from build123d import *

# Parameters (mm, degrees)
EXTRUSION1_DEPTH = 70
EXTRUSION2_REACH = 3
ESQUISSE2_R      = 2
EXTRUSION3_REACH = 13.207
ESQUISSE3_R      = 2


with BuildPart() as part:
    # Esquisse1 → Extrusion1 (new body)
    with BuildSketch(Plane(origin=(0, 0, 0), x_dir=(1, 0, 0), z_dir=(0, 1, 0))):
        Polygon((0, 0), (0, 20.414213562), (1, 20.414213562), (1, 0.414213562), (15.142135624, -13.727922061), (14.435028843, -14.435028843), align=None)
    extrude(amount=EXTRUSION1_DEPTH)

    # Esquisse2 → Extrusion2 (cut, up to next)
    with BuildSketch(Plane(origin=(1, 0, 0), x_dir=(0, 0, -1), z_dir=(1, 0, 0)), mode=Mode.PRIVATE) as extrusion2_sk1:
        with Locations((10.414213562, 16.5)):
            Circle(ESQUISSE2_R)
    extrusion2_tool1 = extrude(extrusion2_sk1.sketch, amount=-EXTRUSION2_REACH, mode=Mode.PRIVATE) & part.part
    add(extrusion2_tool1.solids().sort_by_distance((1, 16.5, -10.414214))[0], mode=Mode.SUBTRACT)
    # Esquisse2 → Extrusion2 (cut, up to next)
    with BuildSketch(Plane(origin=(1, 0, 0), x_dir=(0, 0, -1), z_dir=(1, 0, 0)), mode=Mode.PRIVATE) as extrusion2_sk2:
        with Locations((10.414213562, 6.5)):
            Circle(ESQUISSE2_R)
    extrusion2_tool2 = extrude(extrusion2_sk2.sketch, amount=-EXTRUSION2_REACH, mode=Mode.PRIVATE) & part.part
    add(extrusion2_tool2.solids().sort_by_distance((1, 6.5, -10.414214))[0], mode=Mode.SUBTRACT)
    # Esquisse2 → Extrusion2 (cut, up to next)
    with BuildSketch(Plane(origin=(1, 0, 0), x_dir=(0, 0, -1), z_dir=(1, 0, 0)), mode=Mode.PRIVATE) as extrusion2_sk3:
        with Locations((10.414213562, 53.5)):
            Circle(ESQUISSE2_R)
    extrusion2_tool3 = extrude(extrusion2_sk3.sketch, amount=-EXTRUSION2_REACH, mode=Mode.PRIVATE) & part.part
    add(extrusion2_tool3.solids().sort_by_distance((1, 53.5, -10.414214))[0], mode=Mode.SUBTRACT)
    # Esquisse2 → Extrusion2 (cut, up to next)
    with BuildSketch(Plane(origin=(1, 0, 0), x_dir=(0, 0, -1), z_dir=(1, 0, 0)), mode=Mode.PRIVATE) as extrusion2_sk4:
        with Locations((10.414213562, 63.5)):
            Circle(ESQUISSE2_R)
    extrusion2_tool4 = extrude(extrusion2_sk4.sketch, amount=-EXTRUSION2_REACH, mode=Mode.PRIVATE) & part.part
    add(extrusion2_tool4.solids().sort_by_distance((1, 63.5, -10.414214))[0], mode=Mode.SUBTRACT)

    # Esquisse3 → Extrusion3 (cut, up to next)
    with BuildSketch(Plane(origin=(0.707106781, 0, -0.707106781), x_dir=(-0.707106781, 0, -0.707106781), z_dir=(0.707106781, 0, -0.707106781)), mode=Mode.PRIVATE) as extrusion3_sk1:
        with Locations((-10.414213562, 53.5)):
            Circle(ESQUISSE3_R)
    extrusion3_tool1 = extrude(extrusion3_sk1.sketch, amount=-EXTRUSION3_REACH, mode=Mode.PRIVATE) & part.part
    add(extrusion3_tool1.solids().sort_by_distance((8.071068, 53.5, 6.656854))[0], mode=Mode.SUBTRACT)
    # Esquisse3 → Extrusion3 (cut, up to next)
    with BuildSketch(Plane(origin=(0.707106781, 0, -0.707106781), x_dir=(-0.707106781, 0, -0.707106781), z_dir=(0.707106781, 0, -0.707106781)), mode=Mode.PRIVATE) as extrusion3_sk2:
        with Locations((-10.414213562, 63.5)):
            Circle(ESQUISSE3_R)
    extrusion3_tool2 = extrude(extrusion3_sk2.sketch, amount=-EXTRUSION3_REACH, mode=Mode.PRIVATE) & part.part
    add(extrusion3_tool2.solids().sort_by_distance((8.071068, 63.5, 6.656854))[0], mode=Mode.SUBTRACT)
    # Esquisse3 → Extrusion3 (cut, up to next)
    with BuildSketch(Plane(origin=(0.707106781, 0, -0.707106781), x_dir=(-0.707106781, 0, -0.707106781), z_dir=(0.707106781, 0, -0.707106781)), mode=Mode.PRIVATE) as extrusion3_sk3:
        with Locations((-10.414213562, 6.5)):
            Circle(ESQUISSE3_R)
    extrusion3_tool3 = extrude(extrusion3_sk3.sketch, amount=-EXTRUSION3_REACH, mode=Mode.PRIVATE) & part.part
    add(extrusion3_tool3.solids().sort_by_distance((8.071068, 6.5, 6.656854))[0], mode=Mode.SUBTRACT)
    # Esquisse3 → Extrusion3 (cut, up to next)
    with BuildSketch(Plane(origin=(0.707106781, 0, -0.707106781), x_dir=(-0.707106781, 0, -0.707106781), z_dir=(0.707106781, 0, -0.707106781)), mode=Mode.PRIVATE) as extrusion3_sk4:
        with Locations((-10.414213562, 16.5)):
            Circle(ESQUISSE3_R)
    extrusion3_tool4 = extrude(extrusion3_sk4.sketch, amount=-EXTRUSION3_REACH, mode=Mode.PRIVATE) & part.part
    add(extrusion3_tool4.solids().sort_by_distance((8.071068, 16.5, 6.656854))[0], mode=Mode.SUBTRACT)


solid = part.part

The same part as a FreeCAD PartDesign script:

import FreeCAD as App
import Part
import Sketcher
Q = App.Units.Quantity


def add_polygon(sketch, points):
    """Adds a closed chain of lines whose ends are joined by coincident constraints."""
    first, n = sketch.GeometryCount, len(points)
    for a, b in zip(points, points[1:] + points[:1]):
        sketch.addGeometry(Part.LineSegment(App.Vector(*a, 0), App.Vector(*b, 0)), False)
    for i in range(n):
        sketch.addConstraint(Sketcher.Constraint("Coincident", first + i, 2, first + (i + 1) % n, 1))

doc = App.newDocument("Part")
body = doc.addObject("PartDesign::Body", "Body")

# Sketch on XZ plane
sketch1 = doc.addObject("Sketcher::SketchObject", "Sketch")
body.addObject(sketch1)
sketch1.AttachmentSupport = (doc.XZ_Plane, [""])
sketch1.MapMode = "FlatFace"
add_polygon(sketch1, [(0, -20.4), (0, 0), (14.4, 14.4), (15.1, 13.7), (1, -0.4), (1, -20.4)])  # lines 0-5
sketch1.addConstraint(Sketcher.Constraint("Vertical", 0))
sketch1.addConstraint(Sketcher.Constraint("Vertical", 4))
sketch1.addConstraint(Sketcher.Constraint("Horizontal", 5))
sketch1.addConstraint(Sketcher.Constraint("Coincident", 0, 2, -1, 1))
sketch1.addConstraint(Sketcher.Constraint("Perpendicular", 1, 2))
sketch1.addConstraint(Sketcher.Constraint("Perpendicular", 2, 3))
sketch1.addConstraint(Sketcher.Constraint("DistanceX", 5, 2, 5, 1, Q("1 mm")))
sketch1.addConstraint(Sketcher.Constraint("DistanceY", 4, 2, 4, 1, Q("20 mm")))
sketch1.addConstraint(Sketcher.Constraint("Angle", 1, Q("45 deg")))
sketch1.addConstraint(Sketcher.Constraint("Distance", 2, Q("1 mm")))
sketch1.addConstraint(Sketcher.Constraint("Distance", 3, Q("20 mm")))
pad1 = doc.addObject("PartDesign::Pad", "Pad")
body.addObject(pad1)
pad1.Profile = sketch1
pad1.Length = 70
pad1.Reversed = True

# Sketch on YZ plane
sketch2 = doc.addObject("Sketcher::SketchObject", "Sketch001")
body.addObject(sketch2)
sketch2.AttachmentSupport = (doc.YZ_Plane, [""])
sketch2.MapMode = "FlatFace"
sketch2.AttachmentOffset = App.Placement(App.Vector(0, 0, 1), App.Rotation())
sketch2.addGeometry(Part.Circle(App.Vector(16.5, -10.4, 0), App.Vector(0, 0, 1), 2), False)
sketch2.addConstraint(Sketcher.Constraint("Diameter", 0, Q("4 mm")))
sketch2.addConstraint(Sketcher.Constraint("DistanceX", -1, 1, 0, 3, Q("16.5 mm")))
sketch2.addConstraint(Sketcher.Constraint("DistanceY", 0, 3, -1, 1, Q("10.414214 mm")))
pocket1 = doc.addObject("PartDesign::Pocket", "Pocket")
body.addObject(pocket1)
pocket1.Profile = sketch2
pocket1.Type = "UpToFirst"

# Sketch on YZ plane
sketch3 = doc.addObject("Sketcher::SketchObject", "Sketch002")
body.addObject(sketch3)
sketch3.AttachmentSupport = (doc.YZ_Plane, [""])
sketch3.MapMode = "FlatFace"
sketch3.AttachmentOffset = App.Placement(App.Vector(0, 0, 1), App.Rotation())
sketch3.addGeometry(Part.Circle(App.Vector(6.5, -10.4, 0), App.Vector(0, 0, 1), 2), False)
sketch3.addConstraint(Sketcher.Constraint("Diameter", 0, Q("4 mm")))
sketch3.addConstraint(Sketcher.Constraint("DistanceX", -1, 1, 0, 3, Q("6.5 mm")))
sketch3.addConstraint(Sketcher.Constraint("DistanceY", 0, 3, -1, 1, Q("10.414214 mm")))
pocket2 = doc.addObject("PartDesign::Pocket", "Pocket001")
body.addObject(pocket2)
pocket2.Profile = sketch3
pocket2.Type = "UpToFirst"

# Sketch on YZ plane
sketch4 = doc.addObject("Sketcher::SketchObject", "Sketch003")
body.addObject(sketch4)
sketch4.AttachmentSupport = (doc.YZ_Plane, [""])
sketch4.MapMode = "FlatFace"
sketch4.AttachmentOffset = App.Placement(App.Vector(0, 0, 1), App.Rotation())
sketch4.addGeometry(Part.Circle(App.Vector(53.5, -10.4, 0), App.Vector(0, 0, 1), 2), False)
sketch4.addConstraint(Sketcher.Constraint("Diameter", 0, Q("4 mm")))
sketch4.addConstraint(Sketcher.Constraint("DistanceX", -1, 1, 0, 3, Q("53.5 mm")))
sketch4.addConstraint(Sketcher.Constraint("DistanceY", 0, 3, -1, 1, Q("10.414214 mm")))
pocket3 = doc.addObject("PartDesign::Pocket", "Pocket002")
body.addObject(pocket3)
pocket3.Profile = sketch4
pocket3.Type = "UpToFirst"

# Sketch on YZ plane
sketch5 = doc.addObject("Sketcher::SketchObject", "Sketch004")
body.addObject(sketch5)
sketch5.AttachmentSupport = (doc.YZ_Plane, [""])
sketch5.MapMode = "FlatFace"
sketch5.AttachmentOffset = App.Placement(App.Vector(0, 0, 1), App.Rotation())
sketch5.addGeometry(Part.Circle(App.Vector(63.5, -10.4, 0), App.Vector(0, 0, 1), 2), False)
sketch5.addConstraint(Sketcher.Constraint("Diameter", 0, Q("4 mm")))
sketch5.addConstraint(Sketcher.Constraint("DistanceX", -1, 1, 0, 3, Q("63.5 mm")))
sketch5.addConstraint(Sketcher.Constraint("DistanceY", 0, 3, -1, 1, Q("10.414214 mm")))
pocket4 = doc.addObject("PartDesign::Pocket", "Pocket003")
body.addObject(pocket4)
pocket4.Profile = sketch5
pocket4.Type = "UpToFirst"

# Sketch on an angled plane
sketch6 = doc.addObject("Sketcher::SketchObject", "Sketch005")
body.addObject(sketch6)
sketch6.Placement = App.Placement(App.Vector(0.707107, 0, -0.707107), App.Rotation(App.Vector(-0.707106781, 0, -0.707106781), App.Vector(0, 0.999999999, 0), App.Vector(0.707106781, 0, -0.707106781), "ZXY"))
sketch6.addGeometry(Part.Circle(App.Vector(-10.4, 53.5, 0), App.Vector(0, 0, 1), 2), False)
sketch6.addConstraint(Sketcher.Constraint("Diameter", 0, Q("4 mm")))
sketch6.addConstraint(Sketcher.Constraint("DistanceY", -1, 1, 0, 3, Q("53.5 mm")))
sketch6.addConstraint(Sketcher.Constraint("DistanceX", 0, 3, -1, 1, Q("10.414214 mm")))
pocket5 = doc.addObject("PartDesign::Pocket", "Pocket004")
body.addObject(pocket5)
pocket5.Profile = sketch6
pocket5.Type = "UpToFirst"

# Sketch on an angled plane
sketch7 = doc.addObject("Sketcher::SketchObject", "Sketch006")
body.addObject(sketch7)
sketch7.Placement = App.Placement(App.Vector(0.707107, 0, -0.707107), App.Rotation(App.Vector(-0.707106781, 0, -0.707106781), App.Vector(0, 0.999999999, 0), App.Vector(0.707106781, 0, -0.707106781), "ZXY"))
sketch7.addGeometry(Part.Circle(App.Vector(-10.4, 63.5, 0), App.Vector(0, 0, 1), 2), False)
sketch7.addConstraint(Sketcher.Constraint("Diameter", 0, Q("4 mm")))
sketch7.addConstraint(Sketcher.Constraint("DistanceY", -1, 1, 0, 3, Q("63.5 mm")))
sketch7.addConstraint(Sketcher.Constraint("DistanceX", 0, 3, -1, 1, Q("10.414214 mm")))
pocket6 = doc.addObject("PartDesign::Pocket", "Pocket005")
body.addObject(pocket6)
pocket6.Profile = sketch7
pocket6.Type = "UpToFirst"

# Sketch on an angled plane
sketch8 = doc.addObject("Sketcher::SketchObject", "Sketch007")
body.addObject(sketch8)
sketch8.Placement = App.Placement(App.Vector(0.707107, 0, -0.707107), App.Rotation(App.Vector(-0.707106781, 0, -0.707106781), App.Vector(0, 0.999999999, 0), App.Vector(0.707106781, 0, -0.707106781), "ZXY"))
sketch8.addGeometry(Part.Circle(App.Vector(-10.4, 6.5, 0), App.Vector(0, 0, 1), 2), False)
sketch8.addConstraint(Sketcher.Constraint("Diameter", 0, Q("4 mm")))
sketch8.addConstraint(Sketcher.Constraint("DistanceY", -1, 1, 0, 3, Q("6.5 mm")))
sketch8.addConstraint(Sketcher.Constraint("DistanceX", 0, 3, -1, 1, Q("10.414214 mm")))
pocket7 = doc.addObject("PartDesign::Pocket", "Pocket006")
body.addObject(pocket7)
pocket7.Profile = sketch8
pocket7.Type = "UpToFirst"

# Sketch on an angled plane
sketch9 = doc.addObject("Sketcher::SketchObject", "Sketch008")
body.addObject(sketch9)
sketch9.Placement = App.Placement(App.Vector(0.707107, 0, -0.707107), App.Rotation(App.Vector(-0.707106781, 0, -0.707106781), App.Vector(0, 0.999999999, 0), App.Vector(0.707106781, 0, -0.707106781), "ZXY"))
sketch9.addGeometry(Part.Circle(App.Vector(-10.4, 16.5, 0), App.Vector(0, 0, 1), 2), False)
sketch9.addConstraint(Sketcher.Constraint("Diameter", 0, Q("4 mm")))
sketch9.addConstraint(Sketcher.Constraint("DistanceY", -1, 1, 0, 3, Q("16.5 mm")))
sketch9.addConstraint(Sketcher.Constraint("DistanceX", 0, 3, -1, 1, Q("10.414214 mm")))
pocket8 = doc.addObject("PartDesign::Pocket", "Pocket007")
body.addObject(pocket8)
pocket8.Profile = sketch9
pocket8.Type = "UpToFirst"

doc.recompute()
